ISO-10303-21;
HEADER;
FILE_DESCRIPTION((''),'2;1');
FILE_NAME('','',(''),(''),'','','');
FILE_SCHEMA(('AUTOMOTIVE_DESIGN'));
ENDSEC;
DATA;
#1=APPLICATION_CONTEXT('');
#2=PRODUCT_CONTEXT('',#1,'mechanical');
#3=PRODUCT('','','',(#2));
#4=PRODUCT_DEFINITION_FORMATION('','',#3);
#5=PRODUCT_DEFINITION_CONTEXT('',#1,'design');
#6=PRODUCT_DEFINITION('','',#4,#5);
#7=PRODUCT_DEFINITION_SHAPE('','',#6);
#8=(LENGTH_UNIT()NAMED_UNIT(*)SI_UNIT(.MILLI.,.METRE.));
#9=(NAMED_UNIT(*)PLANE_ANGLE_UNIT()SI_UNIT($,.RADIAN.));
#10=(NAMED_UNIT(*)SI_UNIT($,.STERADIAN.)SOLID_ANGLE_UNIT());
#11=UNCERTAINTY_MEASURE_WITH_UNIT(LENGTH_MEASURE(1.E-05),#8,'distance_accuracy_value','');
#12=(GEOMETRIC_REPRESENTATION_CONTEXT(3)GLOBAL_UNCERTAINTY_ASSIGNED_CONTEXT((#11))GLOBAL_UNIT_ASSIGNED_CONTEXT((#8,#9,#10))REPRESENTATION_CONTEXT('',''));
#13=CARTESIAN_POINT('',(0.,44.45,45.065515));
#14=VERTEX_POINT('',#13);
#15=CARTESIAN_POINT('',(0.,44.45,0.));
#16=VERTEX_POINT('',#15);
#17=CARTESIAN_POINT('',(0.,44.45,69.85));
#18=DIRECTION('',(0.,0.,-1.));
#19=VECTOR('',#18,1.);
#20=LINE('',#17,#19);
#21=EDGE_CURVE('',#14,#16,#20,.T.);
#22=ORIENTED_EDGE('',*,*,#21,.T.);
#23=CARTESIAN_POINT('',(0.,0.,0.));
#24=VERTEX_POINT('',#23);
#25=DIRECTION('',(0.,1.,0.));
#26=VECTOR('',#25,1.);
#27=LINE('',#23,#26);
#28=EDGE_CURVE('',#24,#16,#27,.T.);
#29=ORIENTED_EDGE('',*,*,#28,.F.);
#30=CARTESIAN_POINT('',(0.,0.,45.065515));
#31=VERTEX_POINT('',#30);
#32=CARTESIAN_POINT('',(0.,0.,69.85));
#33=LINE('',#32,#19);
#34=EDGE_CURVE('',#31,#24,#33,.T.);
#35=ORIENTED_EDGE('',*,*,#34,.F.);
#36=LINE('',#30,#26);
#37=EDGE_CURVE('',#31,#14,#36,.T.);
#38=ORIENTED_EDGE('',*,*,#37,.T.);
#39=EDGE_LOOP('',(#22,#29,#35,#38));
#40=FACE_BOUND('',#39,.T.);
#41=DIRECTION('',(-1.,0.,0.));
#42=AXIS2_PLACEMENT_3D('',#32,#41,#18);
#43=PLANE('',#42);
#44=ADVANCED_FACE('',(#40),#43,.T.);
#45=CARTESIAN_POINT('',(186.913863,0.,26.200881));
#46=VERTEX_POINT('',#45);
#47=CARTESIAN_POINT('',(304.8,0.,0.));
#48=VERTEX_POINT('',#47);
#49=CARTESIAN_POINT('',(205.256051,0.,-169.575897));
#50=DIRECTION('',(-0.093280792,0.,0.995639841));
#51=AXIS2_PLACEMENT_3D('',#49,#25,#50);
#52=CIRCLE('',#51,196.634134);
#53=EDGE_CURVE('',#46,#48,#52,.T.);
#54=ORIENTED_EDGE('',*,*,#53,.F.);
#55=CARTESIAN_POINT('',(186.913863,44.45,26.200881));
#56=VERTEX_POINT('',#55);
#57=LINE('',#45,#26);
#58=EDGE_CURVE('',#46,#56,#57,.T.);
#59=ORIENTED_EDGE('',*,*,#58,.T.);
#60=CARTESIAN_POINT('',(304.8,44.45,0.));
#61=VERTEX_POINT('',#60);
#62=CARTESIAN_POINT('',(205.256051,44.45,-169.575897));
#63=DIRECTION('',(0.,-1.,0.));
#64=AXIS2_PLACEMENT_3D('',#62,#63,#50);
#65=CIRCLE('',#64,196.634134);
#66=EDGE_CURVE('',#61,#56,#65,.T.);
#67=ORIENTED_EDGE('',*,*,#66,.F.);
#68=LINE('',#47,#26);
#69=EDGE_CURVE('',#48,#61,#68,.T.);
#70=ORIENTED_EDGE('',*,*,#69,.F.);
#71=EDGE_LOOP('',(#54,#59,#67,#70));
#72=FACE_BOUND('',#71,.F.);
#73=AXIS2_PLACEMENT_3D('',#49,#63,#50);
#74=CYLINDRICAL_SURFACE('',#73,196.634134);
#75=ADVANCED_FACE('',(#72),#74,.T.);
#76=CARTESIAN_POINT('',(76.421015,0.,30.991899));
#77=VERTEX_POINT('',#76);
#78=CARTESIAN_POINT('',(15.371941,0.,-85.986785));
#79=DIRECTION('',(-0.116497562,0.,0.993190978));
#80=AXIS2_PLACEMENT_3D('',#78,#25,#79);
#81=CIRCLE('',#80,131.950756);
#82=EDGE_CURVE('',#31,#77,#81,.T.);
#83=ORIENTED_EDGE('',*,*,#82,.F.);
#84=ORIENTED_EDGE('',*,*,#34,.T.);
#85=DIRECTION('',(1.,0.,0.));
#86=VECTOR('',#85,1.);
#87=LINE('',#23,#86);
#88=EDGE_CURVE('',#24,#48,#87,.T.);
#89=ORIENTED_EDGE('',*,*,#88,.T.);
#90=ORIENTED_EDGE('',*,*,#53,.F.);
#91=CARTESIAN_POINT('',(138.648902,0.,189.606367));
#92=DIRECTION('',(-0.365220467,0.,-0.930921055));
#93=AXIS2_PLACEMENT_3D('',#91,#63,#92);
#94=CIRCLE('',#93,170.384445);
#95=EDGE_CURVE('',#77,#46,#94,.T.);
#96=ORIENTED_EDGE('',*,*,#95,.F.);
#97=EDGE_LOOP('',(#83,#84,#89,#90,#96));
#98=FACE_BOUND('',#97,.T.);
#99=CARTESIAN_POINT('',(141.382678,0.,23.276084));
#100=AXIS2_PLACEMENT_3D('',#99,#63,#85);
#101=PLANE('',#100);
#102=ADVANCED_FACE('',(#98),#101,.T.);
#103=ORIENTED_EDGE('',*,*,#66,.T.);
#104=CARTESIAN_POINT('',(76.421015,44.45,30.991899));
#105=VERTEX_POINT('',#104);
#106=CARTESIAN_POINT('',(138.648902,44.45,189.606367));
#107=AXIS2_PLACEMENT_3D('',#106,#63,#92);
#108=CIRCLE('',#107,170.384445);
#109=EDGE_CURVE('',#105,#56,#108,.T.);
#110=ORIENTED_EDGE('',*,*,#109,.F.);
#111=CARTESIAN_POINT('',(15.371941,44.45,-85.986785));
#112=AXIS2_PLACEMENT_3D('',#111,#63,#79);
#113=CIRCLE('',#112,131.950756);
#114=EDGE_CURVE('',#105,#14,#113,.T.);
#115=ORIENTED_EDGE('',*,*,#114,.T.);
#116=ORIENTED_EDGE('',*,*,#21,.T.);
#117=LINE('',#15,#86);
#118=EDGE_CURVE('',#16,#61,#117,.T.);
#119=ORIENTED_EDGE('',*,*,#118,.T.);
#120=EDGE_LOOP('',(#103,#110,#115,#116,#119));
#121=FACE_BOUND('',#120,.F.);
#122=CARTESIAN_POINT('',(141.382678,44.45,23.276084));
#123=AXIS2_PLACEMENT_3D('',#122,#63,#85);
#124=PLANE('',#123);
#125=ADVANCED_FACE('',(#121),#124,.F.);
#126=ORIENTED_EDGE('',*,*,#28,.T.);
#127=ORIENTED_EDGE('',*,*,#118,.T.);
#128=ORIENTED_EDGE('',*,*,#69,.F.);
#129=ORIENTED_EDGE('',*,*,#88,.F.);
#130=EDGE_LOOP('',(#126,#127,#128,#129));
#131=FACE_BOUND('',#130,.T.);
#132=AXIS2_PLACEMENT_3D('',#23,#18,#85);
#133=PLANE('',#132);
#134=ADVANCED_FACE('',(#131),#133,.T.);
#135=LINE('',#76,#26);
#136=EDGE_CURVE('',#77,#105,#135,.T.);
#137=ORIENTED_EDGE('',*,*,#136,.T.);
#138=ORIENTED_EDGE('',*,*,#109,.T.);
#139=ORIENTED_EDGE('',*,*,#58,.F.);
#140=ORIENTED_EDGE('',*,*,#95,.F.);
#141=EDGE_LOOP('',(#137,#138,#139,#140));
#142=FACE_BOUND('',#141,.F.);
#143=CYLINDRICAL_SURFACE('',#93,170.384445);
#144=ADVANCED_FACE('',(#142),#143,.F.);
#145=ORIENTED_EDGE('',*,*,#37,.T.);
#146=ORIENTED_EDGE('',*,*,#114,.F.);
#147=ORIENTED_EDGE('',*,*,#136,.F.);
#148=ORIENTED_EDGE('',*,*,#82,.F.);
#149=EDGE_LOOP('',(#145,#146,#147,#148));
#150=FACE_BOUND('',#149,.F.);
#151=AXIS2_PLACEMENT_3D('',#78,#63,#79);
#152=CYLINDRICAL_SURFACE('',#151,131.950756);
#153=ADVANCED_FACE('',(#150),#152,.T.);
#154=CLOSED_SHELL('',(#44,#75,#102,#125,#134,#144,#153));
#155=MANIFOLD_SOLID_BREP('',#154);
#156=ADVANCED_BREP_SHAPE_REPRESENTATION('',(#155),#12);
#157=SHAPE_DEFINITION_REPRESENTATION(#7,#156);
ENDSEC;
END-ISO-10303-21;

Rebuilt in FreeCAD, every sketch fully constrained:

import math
import FreeCAD as App
import Part
import Sketcher
Q = App.Units.Quantity

doc = App.newDocument("Part")
body = doc.addObject("PartDesign::Body", "Body")

sketch1 = doc.addObject("Sketcher::SketchObject", "Sketch")
body.addObject(sketch1)
sketch1.AttachmentSupport = (doc.XZ_Plane, [""])
sketch1.MapMode = "FlatFace"
sketch1.addGeometry([
    Part.LineSegment(App.Vector(0, 69.85, 0), App.Vector(0, 0, 0)),
    Part.LineSegment(App.Vector(0, 0, 0), App.Vector(304.8, 0, 0)),
    Part.LineSegment(App.Vector(304.8, 0, 0), App.Vector(304.8, 19.05, 0)),
    Part.LineSegment(App.Vector(304.8, 19.05, 0), App.Vector(0, 69.85, 0)),
], False)
sketch1.addConstraint([
    Sketcher.Constraint("Coincident", 0, 2, 1, 1),
    Sketcher.Constraint("Coincident", 1, 2, 2, 1),
    Sketcher.Constraint("Coincident", 2, 2, 3, 1),
    Sketcher.Constraint("Coincident", 3, 2, 0, 1),
    Sketcher.Constraint("Vertical", 0),
    Sketcher.Constraint("Horizontal", 1),
    Sketcher.Constraint("Vertical", 2),
    Sketcher.Constraint("Coincident", 0, 2, -1, 1),
    Sketcher.Constraint("DistanceX", 1, 1, 1, 2, Q("12 in")),
    Sketcher.Constraint("DistanceY", 2, 2, 3, 2, Q("2 in")),
    Sketcher.Constraint("DistanceY", 0, 2, 0, 1, Q("2.75 in")),
])
pad1 = doc.addObject("PartDesign::Pad", "Pad")
body.addObject(pad1)
pad1.Profile = sketch1
pad1.Length = Q("1.75 in")
pad1.Reversed = True

sketch2 = doc.addObject("Sketcher::SketchObject", "Sketch001")
body.addObject(sketch2)
sketch2.AttachmentSupport = (doc.XZ_Plane, [""])
sketch2.MapMode = "FlatFace"
sketch2.addGeometry([
    Part.ArcOfCircle(Part.Circle(App.Vector(15.371941, -85.986785, 0), App.Vector(0, 0, 1), 131.950756), math.radians(62.440753), math.radians(96.69001)),
    Part.ArcOfCircle(Part.Circle(App.Vector(138.648902, 189.606367, 0), App.Vector(0, 0, 1), 170.384445), math.radians(-111.421151), math.radians(-73.544478)),
    Part.ArcOfCircle(Part.Circle(App.Vector(205.256051, -169.575897, 0), App.Vector(0, 0, 1), 196.634134), math.radians(59.586338), math.radians(95.352377)),
    Part.LineSegment(App.Vector(304.8, 0, 0), App.Vector(304.8, 19.05, 0)),
    Part.LineSegment(App.Vector(304.8, 19.05, 0), App.Vector(0, 69.85, 0)),
    Part.LineSegment(App.Vector(0, 69.85, 0), App.Vector(0, 45.065515, 0)),
], False)
sketch2.addConstraint([
    Sketcher.Constraint("Coincident", 0, 1, 1, 1),
    Sketcher.Constraint("Coincident", 1, 2, 2, 2),
    Sketcher.Constraint("Coincident", 2, 1, 3, 1),
    Sketcher.Constraint("Coincident", 3, 2, 4, 1),
    Sketcher.Constraint("Coincident", 4, 2, 5, 1),
    Sketcher.Constraint("Coincident", 5, 2, 0, 2),
    Sketcher.Constraint("Vertical", 3),
    Sketcher.Constraint("Vertical", 5),
    Sketcher.Constraint("PointOnObject", 2, 1, -1),
    Sketcher.Constraint("PointOnObject", 4, 2, -2),
    Sketcher.Constraint("DistanceX", -1, 1, 2, 1, Q("12 in")),
    Sketcher.Constraint("DistanceY", 3, 2, 4, 2, Q("2 in")),
    Sketcher.Constraint("DistanceY", 3, 1, 3, 2, Q("0.75 in")),
    Sketcher.Constraint("Radius", 0, 131.950756),
    Sketcher.Constraint("Radius", 1, 170.384445),
    Sketcher.Constraint("Radius", 2, 196.634134),
    Sketcher.Constraint("DistanceX", -1, 1, 1, 3, 138.648902),
    Sketcher.Constraint("DistanceY", -1, 1, 0, 1, 30.991899),
    Sketcher.Constraint("DistanceY", 0, 3, 5, 2, 131.0523),
    Sketcher.Constraint("DistanceY", 5, 2, 5, 1, 24.784485),
    Sketcher.Constraint("DistanceX", -1, 1, 2, 3, 205.256051),
])
pocket1 = doc.addObject("PartDesign::Pocket", "Pocket")
body.addObject(pocket1)
pocket1.Profile = sketch2
pocket1.Length = Q("2 in")

doc.recompute()
